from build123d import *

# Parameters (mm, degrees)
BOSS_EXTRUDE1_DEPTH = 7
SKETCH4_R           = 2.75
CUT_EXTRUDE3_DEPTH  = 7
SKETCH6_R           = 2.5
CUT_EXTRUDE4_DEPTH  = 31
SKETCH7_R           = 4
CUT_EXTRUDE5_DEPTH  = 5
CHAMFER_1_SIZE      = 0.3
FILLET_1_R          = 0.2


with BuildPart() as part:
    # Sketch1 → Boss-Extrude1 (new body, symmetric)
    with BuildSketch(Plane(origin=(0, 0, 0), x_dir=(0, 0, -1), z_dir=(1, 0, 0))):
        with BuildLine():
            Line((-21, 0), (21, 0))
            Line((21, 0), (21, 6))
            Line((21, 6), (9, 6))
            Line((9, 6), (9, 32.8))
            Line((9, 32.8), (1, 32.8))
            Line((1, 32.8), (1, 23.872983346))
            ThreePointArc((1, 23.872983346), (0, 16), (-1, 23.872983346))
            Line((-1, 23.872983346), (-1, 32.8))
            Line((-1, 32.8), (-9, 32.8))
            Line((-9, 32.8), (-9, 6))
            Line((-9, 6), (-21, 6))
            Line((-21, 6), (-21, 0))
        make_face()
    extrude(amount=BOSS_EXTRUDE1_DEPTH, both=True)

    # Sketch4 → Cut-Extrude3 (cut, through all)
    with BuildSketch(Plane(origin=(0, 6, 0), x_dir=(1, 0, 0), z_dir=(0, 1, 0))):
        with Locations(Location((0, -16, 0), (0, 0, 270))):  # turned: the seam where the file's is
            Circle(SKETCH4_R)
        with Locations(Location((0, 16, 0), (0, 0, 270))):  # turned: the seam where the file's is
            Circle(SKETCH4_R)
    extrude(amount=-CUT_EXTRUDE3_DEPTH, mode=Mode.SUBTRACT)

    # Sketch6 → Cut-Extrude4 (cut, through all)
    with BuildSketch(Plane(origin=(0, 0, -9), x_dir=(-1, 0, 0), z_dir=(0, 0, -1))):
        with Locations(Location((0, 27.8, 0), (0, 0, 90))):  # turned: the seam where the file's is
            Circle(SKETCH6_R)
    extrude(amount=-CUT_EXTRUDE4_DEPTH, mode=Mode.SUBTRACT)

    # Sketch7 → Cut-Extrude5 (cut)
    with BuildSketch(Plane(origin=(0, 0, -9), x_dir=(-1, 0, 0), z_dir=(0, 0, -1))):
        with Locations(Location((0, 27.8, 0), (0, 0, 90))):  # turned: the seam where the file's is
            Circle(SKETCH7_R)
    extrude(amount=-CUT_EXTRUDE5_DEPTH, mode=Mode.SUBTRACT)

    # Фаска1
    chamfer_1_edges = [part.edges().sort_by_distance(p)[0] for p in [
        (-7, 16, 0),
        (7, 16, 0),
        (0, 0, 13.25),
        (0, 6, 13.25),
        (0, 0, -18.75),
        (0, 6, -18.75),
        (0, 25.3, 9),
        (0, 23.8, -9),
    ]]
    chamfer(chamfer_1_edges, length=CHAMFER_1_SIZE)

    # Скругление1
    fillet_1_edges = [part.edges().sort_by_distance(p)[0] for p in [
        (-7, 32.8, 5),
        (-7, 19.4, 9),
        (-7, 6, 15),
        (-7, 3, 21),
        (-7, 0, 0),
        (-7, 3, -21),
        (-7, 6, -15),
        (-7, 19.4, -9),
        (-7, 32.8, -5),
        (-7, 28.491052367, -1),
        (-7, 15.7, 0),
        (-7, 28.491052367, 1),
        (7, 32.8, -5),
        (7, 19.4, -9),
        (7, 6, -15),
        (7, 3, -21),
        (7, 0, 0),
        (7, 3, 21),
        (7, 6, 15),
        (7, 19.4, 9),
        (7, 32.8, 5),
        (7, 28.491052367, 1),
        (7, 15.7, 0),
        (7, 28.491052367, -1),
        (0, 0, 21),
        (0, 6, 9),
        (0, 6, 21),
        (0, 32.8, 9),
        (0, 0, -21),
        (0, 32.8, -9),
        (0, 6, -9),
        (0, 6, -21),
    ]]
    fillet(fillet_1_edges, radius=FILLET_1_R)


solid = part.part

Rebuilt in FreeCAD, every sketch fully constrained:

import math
import FreeCAD as App
import Part
import Sketcher


def edges_at(feature, points):
    """Names of the edges that pass closest to the given points."""
    edges = feature.Shape.Edges
    near = lambda p: min(range(len(edges)), key=lambda i: edges[i].distToShape(Part.Vertex(*p))[0])
    return sorted({f"Edge{near(p) + 1}" for p in points})

doc = App.newDocument("Part")
body = doc.addObject("PartDesign::Body", "Body")

sketch1 = body.newObject("Sketcher::SketchObject", "Sketch")
sketch1.AttachmentSupport = (doc.getObject("YZ_Plane"), [""])
sketch1.MapMode = "FlatFace"
sketch1.addGeometry(Part.LineSegment(App.Vector(0, 21, 0), App.Vector(0, -21, 0)), False)
sketch1.addGeometry(Part.LineSegment(App.Vector(0, -21, 0), App.Vector(6, -21, 0)), False)
sketch1.addGeometry(Part.LineSegment(App.Vector(6, -21, 0), App.Vector(6, -9, 0)), False)
sketch1.addGeometry(Part.LineSegment(App.Vector(6, -9, 0), App.Vector(32.8, -9, 0)), False)
sketch1.addGeometry(Part.LineSegment(App.Vector(32.8, -9, 0), App.Vector(32.8, -1, 0)), False)
sketch1.addGeometry(Part.LineSegment(App.Vector(32.8, -1, 0), App.Vector(23.9, -1, 0)), False)
sketch1.addGeometry(Part.ArcOfCircle(Part.Circle(App.Vector(20, 0, 0), App.Vector(0, 0, 1), 4), math.radians(14), math.radians(346)), False)
sketch1.addGeometry(Part.LineSegment(App.Vector(23.9, 1, 0), App.Vector(32.8, 1, 0)), False)
sketch1.addGeometry(Part.LineSegment(App.Vector(32.8, 1, 0), App.Vector(32.8, 9, 0)), False)
sketch1.addGeometry(Part.LineSegment(App.Vector(32.8, 9, 0), App.Vector(6, 9, 0)), False)
sketch1.addGeometry(Part.LineSegment(App.Vector(6, 9, 0), App.Vector(6, 21, 0)), False)
sketch1.addGeometry(Part.LineSegment(App.Vector(6, 21, 0), App.Vector(0, 21, 0)), False)
sketch1.addConstraint(Sketcher.Constraint("Coincident", 0, 2, 1, 1))
sketch1.addConstraint(Sketcher.Constraint("Coincident", 1, 2, 2, 1))
sketch1.addConstraint(Sketcher.Constraint("Coincident", 2, 2, 3, 1))
sketch1.addConstraint(Sketcher.Constraint("Coincident", 3, 2, 4, 1))
sketch1.addConstraint(Sketcher.Constraint("Coincident", 4, 2, 5, 1))
sketch1.addConstraint(Sketcher.Constraint("Coincident", 5, 2, 6, 2))
sketch1.addConstraint(Sketcher.Constraint("Coincident", 6, 1, 7, 1))
sketch1.addConstraint(Sketcher.Constraint("Coincident", 7, 2, 8, 1))
sketch1.addConstraint(Sketcher.Constraint("Coincident", 8, 2, 9, 1))
sketch1.addConstraint(Sketcher.Constraint("Coincident", 9, 2, 10, 1))
sketch1.addConstraint(Sketcher.Constraint("Coincident", 10, 2, 11, 1))
sketch1.addConstraint(Sketcher.Constraint("Coincident", 11, 2, 0, 1))
sketch1.addConstraint(Sketcher.Constraint("Vertical", 0))
sketch1.addConstraint(Sketcher.Constraint("Horizontal", 1))
sketch1.addConstraint(Sketcher.Constraint("Vertical", 2))
sketch1.addConstraint(Sketcher.Constraint("Horizontal", 3))
sketch1.addConstraint(Sketcher.Constraint("Vertical", 4))
sketch1.addConstraint(Sketcher.Constraint("Horizontal", 5))
sketch1.addConstraint(Sketcher.Constraint("Horizontal", 7))
sketch1.addConstraint(Sketcher.Constraint("Vertical", 8))
sketch1.addConstraint(Sketcher.Constraint("Horizontal", 9))
sketch1.addConstraint(Sketcher.Constraint("Vertical", 10))
sketch1.addConstraint(Sketcher.Constraint("Horizontal", 11))
sketch1.addConstraint(Sketcher.Constraint("Symmetric", 0, 2, 11, 2, -1, 1))
sketch1.addConstraint(Sketcher.Constraint("Symmetric", 5, 2, 6, 1, -1))
sketch1.addConstraint(Sketcher.Constraint("Symmetric", 3, 2, 8, 2, -1))
sketch1.addConstraint(Sketcher.Constraint("Vertical", 2, 2, 9, 2))
sketch1.addConstraint(Sketcher.Constraint("Radius", 6, 4.0))
sketch1.addConstraint(Sketcher.Constraint("DistanceX", 1, 1, 1, 2, 6.0))
sketch1.addConstraint(Sketcher.Constraint("DistanceY", 0, 2, 0, 1, 42.0))
sketch1.addConstraint(Sketcher.Constraint("DistanceY", 2, 1, 2, 2, 12.0))
sketch1.addConstraint(Sketcher.Constraint("DistanceY", 4, 1, 4, 2, 8.0))
sketch1.addConstraint(Sketcher.Constraint("DistanceX", 3, 1, 3, 2, 26.8))
sketch1.addConstraint(Sketcher.Constraint("DistanceX", -1, 1, 6, 3, 20.0))
pad1 = body.newObject("PartDesign::Pad", "Pad")
pad1.Profile = sketch1
pad1.Length = 14
pad1.Midplane = True

sketch2 = body.newObject("Sketcher::SketchObject", "Sketch001")
sketch2.AttachmentSupport = (doc.getObject("XZ_Plane"), [""])
sketch2.MapMode = "FlatFace"
sketch2.AttachmentOffset = App.Placement(App.Vector(0, 0, -6), App.Rotation())
sketch2.addGeometry(Part.Circle(App.Vector(0, 16, 0), App.Vector(0, 0, 1), 2.8), False)
sketch2.addGeometry(Part.Circle(App.Vector(0, -16, 0), App.Vector(0, 0, 1), 2.8), False)
sketch2.addConstraint(Sketcher.Constraint("Equal", 0, 1))
sketch2.addConstraint(Sketcher.Constraint("Symmetric", 0, 3, 1, 3, -1, 1))
sketch2.addConstraint(Sketcher.Constraint("PointOnObject", 0, 3, -2))
sketch2.addConstraint(Sketcher.Constraint("Diameter", 0, 5.5))
sketch2.addConstraint(Sketcher.Constraint("DistanceY", -1, 1, 0, 3, 16.0))
pocket1 = body.newObject("PartDesign::Pocket", "Pocket")
pocket1.Profile = sketch2
pocket1.Type = "ThroughAll"
pocket1.Reversed = True

sketch3 = body.newObject("Sketcher::SketchObject", "Sketch002")
sketch3.AttachmentSupport = (doc.getObject("XY_Plane"), [""])
sketch3.MapMode = "FlatFace"
sketch3.AttachmentOffset = App.Placement(App.Vector(0, 0, -9), App.Rotation())
sketch3.addGeometry(Part.Circle(App.Vector(0, 27.8, 0), App.Vector(0, 0, 1), 2.5), False)
sketch3.addConstraint(Sketcher.Constraint("PointOnObject", 0, 3, -2))
sketch3.addConstraint(Sketcher.Constraint("Diameter", 0, 5.0))
sketch3.addConstraint(Sketcher.Constraint("DistanceY", -1, 1, 0, 3, 27.8))
pocket2 = body.newObject("PartDesign::Pocket", "Pocket001")
pocket2.Profile = sketch3
pocket2.Type = "ThroughAll"
pocket2.Reversed = True

sketch4 = body.newObject("Sketcher::SketchObject", "Sketch003")
sketch4.AttachmentSupport = (doc.getObject("XY_Plane"), [""])
sketch4.MapMode = "FlatFace"
sketch4.AttachmentOffset = App.Placement(App.Vector(0, 0, -9), App.Rotation())
sketch4.addGeometry(Part.Circle(App.Vector(0, 27.8, 0), App.Vector(0, 0, 1), 4), False)
sketch4.addConstraint(Sketcher.Constraint("PointOnObject", 0, 3, -2))
sketch4.addConstraint(Sketcher.Constraint("Diameter", 0, 8.0))
sketch4.addConstraint(Sketcher.Constraint("DistanceY", -1, 1, 0, 3, 27.8))
pocket3 = body.newObject("PartDesign::Pocket", "Pocket002")
pocket3.Profile = sketch4
pocket3.Length = 5
pocket3.Reversed = True
doc.recompute()

chamfer = body.newObject("PartDesign::Chamfer", "Chamfer")
chamfer.Base = (pocket3, edges_at(pocket3, [
    (-7, 16, 0),
    (7, 16, 0),
    (0, 0, 13.25),
    (0, 6, 13.25),
    (0, 0, -18.75),
    (0, 6, -18.75),
    (0, 25.3, 9),
    (0, 23.8, -9),
]))
chamfer.Size = 0.3
doc.recompute()

fillet = body.newObject("PartDesign::Fillet", "Fillet")
fillet.Base = (chamfer, edges_at(chamfer, [
    (-7, 32.8, 5),
    (-7, 19.4, 9),
    (-7, 6, 15),
    (-7, 3, 21),
    (-7, 0, 0),
    (-7, 3, -21),
    (-7, 6, -15),
    (-7, 19.4, -9),
    (-7, 32.8, -5),
    (-7, 28.491, -1),
    (-7, 15.7, 0),
    (-7, 28.491, 1),
    (7, 32.8, -5),
    (7, 19.4, -9),
    (7, 6, -15),
    (7, 3, -21),
    (7, 0, 0),
    (7, 3, 21),
    (7, 6, 15),
    (7, 19.4, 9),
    (7, 32.8, 5),
    (7, 28.491, 1),
    (7, 15.7, 0),
    (7, 28.491, -1),
    (0, 0, 21),
    (0, 6, 9),
    (0, 6, 21),
    (0, 32.8, 9),
    (0, 0, -21),
    (0, 32.8, -9),
    (0, 6, -9),
    (0, 6, -21),
]))
fillet.Radius = 0.2

doc.recompute()
